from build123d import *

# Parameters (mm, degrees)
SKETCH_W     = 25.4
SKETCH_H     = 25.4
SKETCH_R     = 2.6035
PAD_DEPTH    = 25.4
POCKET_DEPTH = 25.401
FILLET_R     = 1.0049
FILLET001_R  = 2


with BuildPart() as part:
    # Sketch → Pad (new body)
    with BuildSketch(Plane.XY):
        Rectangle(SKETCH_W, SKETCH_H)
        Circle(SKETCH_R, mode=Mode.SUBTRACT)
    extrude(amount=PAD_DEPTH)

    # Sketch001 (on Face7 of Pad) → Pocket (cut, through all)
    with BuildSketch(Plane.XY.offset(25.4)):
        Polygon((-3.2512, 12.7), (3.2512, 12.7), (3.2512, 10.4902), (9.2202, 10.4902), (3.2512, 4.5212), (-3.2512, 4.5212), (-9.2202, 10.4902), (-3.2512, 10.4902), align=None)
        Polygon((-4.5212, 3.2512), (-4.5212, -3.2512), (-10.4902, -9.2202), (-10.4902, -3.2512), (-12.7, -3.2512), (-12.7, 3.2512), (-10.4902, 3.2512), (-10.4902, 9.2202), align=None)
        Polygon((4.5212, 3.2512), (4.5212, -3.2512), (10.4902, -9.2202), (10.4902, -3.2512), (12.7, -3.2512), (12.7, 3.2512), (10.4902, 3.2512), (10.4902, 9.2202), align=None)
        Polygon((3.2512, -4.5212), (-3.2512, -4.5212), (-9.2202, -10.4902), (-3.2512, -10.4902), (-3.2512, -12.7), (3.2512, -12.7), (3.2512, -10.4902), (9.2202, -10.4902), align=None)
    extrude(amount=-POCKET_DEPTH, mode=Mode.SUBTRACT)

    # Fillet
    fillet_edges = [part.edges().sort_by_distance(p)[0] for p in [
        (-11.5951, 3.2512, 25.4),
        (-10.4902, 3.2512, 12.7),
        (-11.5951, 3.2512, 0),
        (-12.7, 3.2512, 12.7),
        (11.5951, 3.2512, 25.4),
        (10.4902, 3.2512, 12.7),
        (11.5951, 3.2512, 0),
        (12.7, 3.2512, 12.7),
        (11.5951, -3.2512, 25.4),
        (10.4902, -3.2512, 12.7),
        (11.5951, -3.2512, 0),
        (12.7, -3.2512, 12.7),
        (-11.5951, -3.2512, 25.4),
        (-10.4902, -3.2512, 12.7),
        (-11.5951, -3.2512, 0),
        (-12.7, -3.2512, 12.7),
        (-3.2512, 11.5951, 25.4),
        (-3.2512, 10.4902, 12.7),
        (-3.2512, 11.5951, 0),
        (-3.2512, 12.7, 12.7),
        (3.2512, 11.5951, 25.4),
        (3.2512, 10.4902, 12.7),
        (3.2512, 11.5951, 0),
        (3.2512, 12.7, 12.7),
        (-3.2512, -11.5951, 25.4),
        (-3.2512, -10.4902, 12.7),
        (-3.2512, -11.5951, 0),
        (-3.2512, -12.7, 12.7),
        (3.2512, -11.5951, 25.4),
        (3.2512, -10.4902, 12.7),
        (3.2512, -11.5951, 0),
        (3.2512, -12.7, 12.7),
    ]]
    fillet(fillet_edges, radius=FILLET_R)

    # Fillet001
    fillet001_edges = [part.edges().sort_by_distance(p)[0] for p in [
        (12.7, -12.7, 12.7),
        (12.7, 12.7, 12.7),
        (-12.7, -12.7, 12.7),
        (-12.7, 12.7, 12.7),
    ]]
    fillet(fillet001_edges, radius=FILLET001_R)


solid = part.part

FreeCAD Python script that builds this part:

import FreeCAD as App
import Part
import Sketcher
from FreeCAD import Vector
Q = App.Units.Quantity


def edges_at(feature, points):
    """Names of the edges that pass closest to the given points."""
    edges = feature.Shape.Edges
    near = lambda p: min(range(len(edges)), key=lambda i: edges[i].distToShape(Part.Vertex(*p))[0])
    return sorted({f"Edge{near(p) + 1}" for p in points})

doc = App.newDocument("Part")
body = doc.addObject("PartDesign::Body", "Body")

sketch1 = body.newObject("Sketcher::SketchObject", "Sketch")
sketch1.AttachmentSupport = (doc.getObject("XY_Plane"), [""])
sketch1.MapMode = "FlatFace"
sketch1.addGeometry(Part.LineSegment(Vector(-12.7, 12.7, 0), Vector(-12.7, -12.7, 0)), False)
sketch1.addGeometry(Part.LineSegment(Vector(-12.7, -12.7, 0), Vector(12.7, -12.7, 0)), False)
sketch1.addGeometry(Part.LineSegment(Vector(12.7, -12.7, 0), Vector(12.7, 12.7, 0)), False)
sketch1.addGeometry(Part.LineSegment(Vector(12.7, 12.7, 0), Vector(-12.7, 12.7, 0)), False)
sketch1.addGeometry(Part.Circle(Vector(0, 0, 0), Vector(0, 0, 1), 2.6035), False)
sketch1.addConstraint(Sketcher.Constraint("Coincident", 0, 2, 1, 1))
sketch1.addConstraint(Sketcher.Constraint("Coincident", 1, 2, 2, 1))
sketch1.addConstraint(Sketcher.Constraint("Coincident", 2, 2, 3, 1))
sketch1.addConstraint(Sketcher.Constraint("Coincident", 3, 2, 0, 1))
sketch1.addConstraint(Sketcher.Constraint("Vertical", 0))
sketch1.addConstraint(Sketcher.Constraint("Horizontal", 1))
sketch1.addConstraint(Sketcher.Constraint("Vertical", 2))
sketch1.addConstraint(Sketcher.Constraint("Horizontal", 3))
sketch1.addConstraint(Sketcher.Constraint("Coincident", 4, 3, -1, 1))
sketch1.addConstraint(Sketcher.Constraint("Symmetric", 0, 2, 2, 2, -1, 1))
sketch1.addConstraint(Sketcher.Constraint("Equal", 3, 0))
sketch1.addConstraint(Sketcher.Constraint("DistanceX", 1, 1, 1, 2, Q("1 in")))
sketch1.addConstraint(Sketcher.Constraint("Diameter", 4, Q("0.205 in")))
pad1 = body.newObject("PartDesign::Pad", "Pad")
pad1.Profile = sketch1
pad1.Length = Q("1 in")

sketch2 = body.newObject("Sketcher::SketchObject", "Sketch001")
sketch2.AttachmentSupport = (doc.getObject("XY_Plane"), [""])
sketch2.MapMode = "FlatFace"
sketch2.AttachmentOffset = App.Placement(Vector(0, 0, 1 * 25.4), App.Rotation())
sketch2.addGeometry(Part.LineSegment(Vector(3.2512, 12.7, 0), Vector(-3.2512, 12.7, 0)), False)
sketch2.addGeometry(Part.LineSegment(Vector(-3.2512, 12.7, 0), Vector(-3.2512, 10.4902, 0)), False)
sketch2.addGeometry(Part.LineSegment(Vector(-3.2512, 10.4902, 0), Vector(-9.2202, 10.4902, 0)), False)
sketch2.addGeometry(Part.LineSegment(Vector(-9.2202, 10.4902, 0), Vector(-3.2512, 4.5212, 0)), False)
sketch2.addGeometry(Part.LineSegment(Vector(-3.2512, 4.5212, 0), Vector(3.2512, 4.5212, 0)), False)
sketch2.addGeometry(Part.LineSegment(Vector(3.2512, 4.5212, 0), Vector(9.2202, 10.4902, 0)), False)
sketch2.addGeometry(Part.LineSegment(Vector(9.2202, 10.4902, 0), Vector(3.2512, 10.4902, 0)), False)
sketch2.addGeometry(Part.LineSegment(Vector(3.2512, 10.4902, 0), Vector(3.2512, 12.7, 0)), False)
sketch2.addGeometry(Part.LineSegment(Vector(-4.5212, -3.2512, 0), Vector(-4.5212, 3.2512, 0)), False)
sketch2.addGeometry(Part.LineSegment(Vector(-4.5212, 3.2512, 0), Vector(-10.4902, 9.2202, 0)), False)
sketch2.addGeometry(Part.LineSegment(Vector(-10.4902, 9.2202, 0), Vector(-10.4902, 3.2512, 0)), False)
sketch2.addGeometry(Part.LineSegment(Vector(-10.4902, 3.2512, 0), Vector(-12.7, 3.2512, 0)), False)
sketch2.addGeometry(Part.LineSegment(Vector(-12.7, 3.2512, 0), Vector(-12.7, -3.2512, 0)), False)
sketch2.addGeometry(Part.LineSegment(Vector(-12.7, -3.2512, 0), Vector(-10.4902, -3.2512, 0)), False)
sketch2.addGeometry(Part.LineSegment(Vector(-10.4902, -3.2512, 0), Vector(-10.4902, -9.2202, 0)), False)
sketch2.addGeometry(Part.LineSegment(Vector(-10.4902, -9.2202, 0), Vector(-4.5212, -3.2512, 0)), False)
sketch2.addGeometry(Part.LineSegment(Vector(4.5212, 3.2512, 0), Vector(4.5212, -3.2512, 0)), False)
sketch2.addGeometry(Part.LineSegment(Vector(4.5212, -3.2512, 0), Vector(10.4902, -9.2202, 0)), False)
sketch2.addGeometry(Part.LineSegment(Vector(10.4902, -9.2202, 0), Vector(10.4902, -3.2512, 0)), False)
sketch2.addGeometry(Part.LineSegment(Vector(10.4902, -3.2512, 0), Vector(12.7, -3.2512, 0)), False)
sketch2.addGeometry(Part.LineSegment(Vector(12.7, -3.2512, 0), Vector(12.7, 3.2512, 0)), False)
sketch2.addGeometry(Part.LineSegment(Vector(12.7, 3.2512, 0), Vector(10.4902, 3.2512, 0)), False)
sketch2.addGeometry(Part.LineSegment(Vector(10.4902, 3.2512, 0), Vector(10.4902, 9.2202, 0)), False)
sketch2.addGeometry(Part.LineSegment(Vector(10.4902, 9.2202, 0), Vector(4.5212, 3.2512, 0)), False)
sketch2.addGeometry(Part.LineSegment(Vector(3.2512, -4.5212, 0), Vector(-3.2512, -4.5212, 0)), False)
sketch2.addGeometry(Part.LineSegment(Vector(-3.2512, -4.5212, 0), Vector(-9.2202, -10.4902, 0)), False)
sketch2.addGeometry(Part.LineSegment(Vector(-9.2202, -10.4902, 0), Vector(-3.2512, -10.4902, 0)), False)
sketch2.addGeometry(Part.LineSegment(Vector(-3.2512, -10.4902, 0), Vector(-3.2512, -12.7, 0)), False)
sketch2.addGeometry(Part.LineSegment(Vector(-3.2512, -12.7, 0), Vector(3.2512, -12.7, 0)), False)
sketch2.addGeometry(Part.LineSegment(Vector(3.2512, -12.7, 0), Vector(3.2512, -10.4902, 0)), False)
sketch2.addGeometry(Part.LineSegment(Vector(3.2512, -10.4902, 0), Vector(9.2202, -10.4902, 0)), False)
sketch2.addGeometry(Part.LineSegment(Vector(9.2202, -10.4902, 0), Vector(3.2512, -4.5212, 0)), False)
sketch2.addConstraint(Sketcher.Constraint("Coincident", 0, 2, 1, 1))
sketch2.addConstraint(Sketcher.Constraint("Coincident", 1, 2, 2, 1))
sketch2.addConstraint(Sketcher.Constraint("Coincident", 2, 2, 3, 1))
sketch2.addConstraint(Sketcher.Constraint("Coincident", 3, 2, 4, 1))
sketch2.addConstraint(Sketcher.Constraint("Coincident", 4, 2, 5, 1))
sketch2.addConstraint(Sketcher.Constraint("Coincident", 5, 2, 6, 1))
sketch2.addConstraint(Sketcher.Constraint("Coincident", 6, 2, 7, 1))
sketch2.addConstraint(Sketcher.Constraint("Coincident", 7, 2, 0, 1))
sketch2.addConstraint(Sketcher.Constraint("Coincident", 8, 2, 9, 1))
sketch2.addConstraint(Sketcher.Constraint("Coincident", 9, 2, 10, 1))
sketch2.addConstraint(Sketcher.Constraint("Coincident", 10, 2, 11, 1))
sketch2.addConstraint(Sketcher.Constraint("Coincident", 11, 2, 12, 1))
sketch2.addConstraint(Sketcher.Constraint("Coincident", 12, 2, 13, 1))
sketch2.addConstraint(Sketcher.Constraint("Coincident", 13, 2, 14, 1))
sketch2.addConstraint(Sketcher.Constraint("Coincident", 14, 2, 15, 1))
sketch2.addConstraint(Sketcher.Constraint("Coincident", 15, 2, 8, 1))
sketch2.addConstraint(Sketcher.Constraint("Coincident", 16, 2, 17, 1))
sketch2.addConstraint(Sketcher.Constraint("Coincident", 17, 2, 18, 1))
sketch2.addConstraint(Sketcher.Constraint("Coincident", 18, 2, 19, 1))
sketch2.addConstraint(Sketcher.Constraint("Coincident", 19, 2, 20, 1))
sketch2.addConstraint(Sketcher.Constraint("Coincident", 20, 2, 21, 1))
sketch2.addConstraint(Sketcher.Constraint("Coincident", 21, 2, 22, 1))
sketch2.addConstraint(Sketcher.Constraint("Coincident", 22, 2, 23, 1))
sketch2.addConstraint(Sketcher.Constraint("Coincident", 23, 2, 16, 1))
sketch2.addConstraint(Sketcher.Constraint("Coincident", 24, 2, 25, 1))
sketch2.addConstraint(Sketcher.Constraint("Coincident", 25, 2, 26, 1))
sketch2.addConstraint(Sketcher.Constraint("Coincident", 26, 2, 27, 1))
sketch2.addConstraint(Sketcher.Constraint("Coincident", 27, 2, 28, 1))
sketch2.addConstraint(Sketcher.Constraint("Coincident", 28, 2, 29, 1))
sketch2.addConstraint(Sketcher.Constraint("Coincident", 29, 2, 30, 1))
sketch2.addConstraint(Sketcher.Constraint("Coincident", 30, 2, 31, 1))
sketch2.addConstraint(Sketcher.Constraint("Coincident", 31, 2, 24, 1))
sketch2.addConstraint(Sketcher.Constraint("Horizontal", 0))
sketch2.addConstraint(Sketcher.Constraint("Vertical", 1))
sketch2.addConstraint(Sketcher.Constraint("Horizontal", 2))
sketch2.addConstraint(Sketcher.Constraint("Horizontal", 4))
sketch2.addConstraint(Sketcher.Constraint("Horizontal", 6))
sketch2.addConstraint(Sketcher.Constraint("Vertical", 7))
sketch2.addConstraint(Sketcher.Constraint("Vertical", 8))
sketch2.addConstraint(Sketcher.Constraint("Vertical", 10))
sketch2.addConstraint(Sketcher.Constraint("Horizontal", 11))
sketch2.addConstraint(Sketcher.Constraint("Vertical", 12))
sketch2.addConstraint(Sketcher.Constraint("Horizontal", 13))
sketch2.addConstraint(Sketcher.Constraint("Vertical", 14))
sketch2.addConstraint(Sketcher.Constraint("Vertical", 16))
sketch2.addConstraint(Sketcher.Constraint("Vertical", 18))
sketch2.addConstraint(Sketcher.Constraint("Horizontal", 19))
sketch2.addConstraint(Sketcher.Constraint("Vertical", 20))
sketch2.addConstraint(Sketcher.Constraint("Horizontal", 21))
sketch2.addConstraint(Sketcher.Constraint("Vertical", 22))
sketch2.addConstraint(Sketcher.Constraint("Horizontal", 24))
sketch2.addConstraint(Sketcher.Constraint("Horizontal", 26))
sketch2.addConstraint(Sketcher.Constraint("Vertical", 27))
sketch2.addConstraint(Sketcher.Constraint("Horizontal", 28))
sketch2.addConstraint(Sketcher.Constraint("Vertical", 29))
sketch2.addConstraint(Sketcher.Constraint("Horizontal", 30))
sketch2.addConstraint(Sketcher.Constraint("Symmetric", 8, 2, 16, 2, -1, 1))
sketch2.addConstraint(Sketcher.Constraint("Symmetric", 9, 2, 17, 2, -1, 1))
sketch2.addConstraint(Sketcher.Constraint("Symmetric", 11, 2, 19, 2, -1, 1))
sketch2.addConstraint(Sketcher.Constraint("Symmetric", 13, 2, 21, 2, -1, 1))
sketch2.addConstraint(Sketcher.Constraint("Symmetric", 4, 2, 24, 2, -1, 1))
sketch2.addConstraint(Sketcher.Constraint("Symmetric", 5, 2, 25, 2, -1, 1))
sketch2.addConstraint(Sketcher.Constraint("Symmetric", 7, 2, 27, 2, -1, 1))
sketch2.addConstraint(Sketcher.Constraint("Symmetric", 1, 2, 29, 2, -1, 1))
sketch2.addConstraint(Sketcher.Constraint("Symmetric", 2, 2, 5, 2, -2))
sketch2.addConstraint(Sketcher.Constraint("Symmetric", 14, 2, 17, 2, -2))
sketch2.addConstraint(Sketcher.Constraint("Perpendicular", 3, 5))
sketch2.addConstraint(Sketcher.Constraint("Perpendicular", 5, 9))
sketch2.addConstraint(Sketcher.Constraint("Perpendicular", 9, 15))
sketch2.addConstraint(Sketcher.Constraint("Perpendicular", 17, 23))
sketch2.addConstraint(Sketcher.Constraint("Perpendicular", 25, 31))
sketch2.addConstraint(Sketcher.Constraint("Horizontal", 8, 2, 10, 2))
sketch2.addConstraint(Sketcher.Constraint("Horizontal", 13, 2, 15, 2))
sketch2.addConstraint(Sketcher.Constraint("Horizontal", 15, 2, 16, 2))
sketch2.addConstraint(Sketcher.Constraint("Horizontal", 9, 2, 22, 2))
sketch2.addConstraint(Sketcher.Constraint("Vertical", 1, 2, 3, 2))
sketch2.addConstraint(Sketcher.Constraint("Vertical", 4, 2, 6, 2))
sketch2.addConstraint(Sketcher.Constraint("Vertical", 5, 2, 30, 2))
sketch2.addConstraint(Sketcher.Constraint("Equal", 21, 1))
sketch2.addConstraint(Sketcher.Constraint("Equal", 28, 8))
sketch2.addConstraint(Sketcher.Constraint("Equal", 30, 10))
sketch2.addConstraint(Sketcher.Constraint("DistanceY", -1, 1, 0, 2, Q("0.5 in")))
sketch2.addConstraint(Sketcher.Constraint("DistanceX", 11, 2, -1, 1, Q("0.5 in")))
sketch2.addConstraint(Sketcher.Constraint("DistanceX", 0, 2, 0, 1, Q("0.256 in")))
sketch2.addConstraint(Sketcher.Constraint("DistanceX", 2, 2, 2, 1, Q("0.235 in")))
sketch2.addConstraint(Sketcher.Constraint("DistanceX", 11, 2, 11, 1, Q("0.087 in")))
pocket1 = body.newObject("PartDesign::Pocket", "Pocket")
pocket1.Profile = sketch2
pocket1.Type = "ThroughAll"
doc.recompute()

fillet = body.newObject("PartDesign::Fillet", "Fillet")
fillet.Base = (pocket1, edges_at(pocket1, [
    (-11.595, 3.251, 25.4),
    (-10.49, 3.251, 12.7),
    (-11.595, 3.251, 0),
    (-12.7, 3.251, 12.7),
    (11.595, 3.251, 25.4),
    (10.49, 3.251, 12.7),
    (11.595, 3.251, 0),
    (12.7, 3.251, 12.7),
    (11.595, -3.251, 25.4),
    (10.49, -3.251, 12.7),
    (11.595, -3.251, 0),
    (12.7, -3.251, 12.7),
    (-11.595, -3.251, 25.4),
    (-10.49, -3.251, 12.7),
    (-11.595, -3.251, 0),
    (-12.7, -3.251, 12.7),
    (-3.251, 11.595, 25.4),
    (-3.251, 10.49, 12.7),
    (-3.251, 11.595, 0),
    (-3.251, 12.7, 12.7),
    (3.251, 11.595, 25.4),
    (3.251, 10.49, 12.7),
    (3.251, 11.595, 0),
    (3.251, 12.7, 12.7),
    (-3.251, -11.595, 25.4),
    (-3.251, -10.49, 12.7),
    (-3.251, -11.595, 0),
    (-3.251, -12.7, 12.7),
    (3.251, -11.595, 25.4),
    (3.251, -10.49, 12.7),
    (3.251, -11.595, 0),
    (3.251, -12.7, 12.7),
]))
fillet.Radius = 1.0049
doc.recompute()

fillet2 = body.newObject("PartDesign::Fillet", "Fillet001")
fillet2.Base = (fillet, edges_at(fillet, [
    (12.7, -12.7, 12.7),
    (12.7, 12.7, 12.7),
    (-12.7, -12.7, 12.7),
    (-12.7, 12.7, 12.7),
]))
fillet2.Radius = 2

doc.recompute()
